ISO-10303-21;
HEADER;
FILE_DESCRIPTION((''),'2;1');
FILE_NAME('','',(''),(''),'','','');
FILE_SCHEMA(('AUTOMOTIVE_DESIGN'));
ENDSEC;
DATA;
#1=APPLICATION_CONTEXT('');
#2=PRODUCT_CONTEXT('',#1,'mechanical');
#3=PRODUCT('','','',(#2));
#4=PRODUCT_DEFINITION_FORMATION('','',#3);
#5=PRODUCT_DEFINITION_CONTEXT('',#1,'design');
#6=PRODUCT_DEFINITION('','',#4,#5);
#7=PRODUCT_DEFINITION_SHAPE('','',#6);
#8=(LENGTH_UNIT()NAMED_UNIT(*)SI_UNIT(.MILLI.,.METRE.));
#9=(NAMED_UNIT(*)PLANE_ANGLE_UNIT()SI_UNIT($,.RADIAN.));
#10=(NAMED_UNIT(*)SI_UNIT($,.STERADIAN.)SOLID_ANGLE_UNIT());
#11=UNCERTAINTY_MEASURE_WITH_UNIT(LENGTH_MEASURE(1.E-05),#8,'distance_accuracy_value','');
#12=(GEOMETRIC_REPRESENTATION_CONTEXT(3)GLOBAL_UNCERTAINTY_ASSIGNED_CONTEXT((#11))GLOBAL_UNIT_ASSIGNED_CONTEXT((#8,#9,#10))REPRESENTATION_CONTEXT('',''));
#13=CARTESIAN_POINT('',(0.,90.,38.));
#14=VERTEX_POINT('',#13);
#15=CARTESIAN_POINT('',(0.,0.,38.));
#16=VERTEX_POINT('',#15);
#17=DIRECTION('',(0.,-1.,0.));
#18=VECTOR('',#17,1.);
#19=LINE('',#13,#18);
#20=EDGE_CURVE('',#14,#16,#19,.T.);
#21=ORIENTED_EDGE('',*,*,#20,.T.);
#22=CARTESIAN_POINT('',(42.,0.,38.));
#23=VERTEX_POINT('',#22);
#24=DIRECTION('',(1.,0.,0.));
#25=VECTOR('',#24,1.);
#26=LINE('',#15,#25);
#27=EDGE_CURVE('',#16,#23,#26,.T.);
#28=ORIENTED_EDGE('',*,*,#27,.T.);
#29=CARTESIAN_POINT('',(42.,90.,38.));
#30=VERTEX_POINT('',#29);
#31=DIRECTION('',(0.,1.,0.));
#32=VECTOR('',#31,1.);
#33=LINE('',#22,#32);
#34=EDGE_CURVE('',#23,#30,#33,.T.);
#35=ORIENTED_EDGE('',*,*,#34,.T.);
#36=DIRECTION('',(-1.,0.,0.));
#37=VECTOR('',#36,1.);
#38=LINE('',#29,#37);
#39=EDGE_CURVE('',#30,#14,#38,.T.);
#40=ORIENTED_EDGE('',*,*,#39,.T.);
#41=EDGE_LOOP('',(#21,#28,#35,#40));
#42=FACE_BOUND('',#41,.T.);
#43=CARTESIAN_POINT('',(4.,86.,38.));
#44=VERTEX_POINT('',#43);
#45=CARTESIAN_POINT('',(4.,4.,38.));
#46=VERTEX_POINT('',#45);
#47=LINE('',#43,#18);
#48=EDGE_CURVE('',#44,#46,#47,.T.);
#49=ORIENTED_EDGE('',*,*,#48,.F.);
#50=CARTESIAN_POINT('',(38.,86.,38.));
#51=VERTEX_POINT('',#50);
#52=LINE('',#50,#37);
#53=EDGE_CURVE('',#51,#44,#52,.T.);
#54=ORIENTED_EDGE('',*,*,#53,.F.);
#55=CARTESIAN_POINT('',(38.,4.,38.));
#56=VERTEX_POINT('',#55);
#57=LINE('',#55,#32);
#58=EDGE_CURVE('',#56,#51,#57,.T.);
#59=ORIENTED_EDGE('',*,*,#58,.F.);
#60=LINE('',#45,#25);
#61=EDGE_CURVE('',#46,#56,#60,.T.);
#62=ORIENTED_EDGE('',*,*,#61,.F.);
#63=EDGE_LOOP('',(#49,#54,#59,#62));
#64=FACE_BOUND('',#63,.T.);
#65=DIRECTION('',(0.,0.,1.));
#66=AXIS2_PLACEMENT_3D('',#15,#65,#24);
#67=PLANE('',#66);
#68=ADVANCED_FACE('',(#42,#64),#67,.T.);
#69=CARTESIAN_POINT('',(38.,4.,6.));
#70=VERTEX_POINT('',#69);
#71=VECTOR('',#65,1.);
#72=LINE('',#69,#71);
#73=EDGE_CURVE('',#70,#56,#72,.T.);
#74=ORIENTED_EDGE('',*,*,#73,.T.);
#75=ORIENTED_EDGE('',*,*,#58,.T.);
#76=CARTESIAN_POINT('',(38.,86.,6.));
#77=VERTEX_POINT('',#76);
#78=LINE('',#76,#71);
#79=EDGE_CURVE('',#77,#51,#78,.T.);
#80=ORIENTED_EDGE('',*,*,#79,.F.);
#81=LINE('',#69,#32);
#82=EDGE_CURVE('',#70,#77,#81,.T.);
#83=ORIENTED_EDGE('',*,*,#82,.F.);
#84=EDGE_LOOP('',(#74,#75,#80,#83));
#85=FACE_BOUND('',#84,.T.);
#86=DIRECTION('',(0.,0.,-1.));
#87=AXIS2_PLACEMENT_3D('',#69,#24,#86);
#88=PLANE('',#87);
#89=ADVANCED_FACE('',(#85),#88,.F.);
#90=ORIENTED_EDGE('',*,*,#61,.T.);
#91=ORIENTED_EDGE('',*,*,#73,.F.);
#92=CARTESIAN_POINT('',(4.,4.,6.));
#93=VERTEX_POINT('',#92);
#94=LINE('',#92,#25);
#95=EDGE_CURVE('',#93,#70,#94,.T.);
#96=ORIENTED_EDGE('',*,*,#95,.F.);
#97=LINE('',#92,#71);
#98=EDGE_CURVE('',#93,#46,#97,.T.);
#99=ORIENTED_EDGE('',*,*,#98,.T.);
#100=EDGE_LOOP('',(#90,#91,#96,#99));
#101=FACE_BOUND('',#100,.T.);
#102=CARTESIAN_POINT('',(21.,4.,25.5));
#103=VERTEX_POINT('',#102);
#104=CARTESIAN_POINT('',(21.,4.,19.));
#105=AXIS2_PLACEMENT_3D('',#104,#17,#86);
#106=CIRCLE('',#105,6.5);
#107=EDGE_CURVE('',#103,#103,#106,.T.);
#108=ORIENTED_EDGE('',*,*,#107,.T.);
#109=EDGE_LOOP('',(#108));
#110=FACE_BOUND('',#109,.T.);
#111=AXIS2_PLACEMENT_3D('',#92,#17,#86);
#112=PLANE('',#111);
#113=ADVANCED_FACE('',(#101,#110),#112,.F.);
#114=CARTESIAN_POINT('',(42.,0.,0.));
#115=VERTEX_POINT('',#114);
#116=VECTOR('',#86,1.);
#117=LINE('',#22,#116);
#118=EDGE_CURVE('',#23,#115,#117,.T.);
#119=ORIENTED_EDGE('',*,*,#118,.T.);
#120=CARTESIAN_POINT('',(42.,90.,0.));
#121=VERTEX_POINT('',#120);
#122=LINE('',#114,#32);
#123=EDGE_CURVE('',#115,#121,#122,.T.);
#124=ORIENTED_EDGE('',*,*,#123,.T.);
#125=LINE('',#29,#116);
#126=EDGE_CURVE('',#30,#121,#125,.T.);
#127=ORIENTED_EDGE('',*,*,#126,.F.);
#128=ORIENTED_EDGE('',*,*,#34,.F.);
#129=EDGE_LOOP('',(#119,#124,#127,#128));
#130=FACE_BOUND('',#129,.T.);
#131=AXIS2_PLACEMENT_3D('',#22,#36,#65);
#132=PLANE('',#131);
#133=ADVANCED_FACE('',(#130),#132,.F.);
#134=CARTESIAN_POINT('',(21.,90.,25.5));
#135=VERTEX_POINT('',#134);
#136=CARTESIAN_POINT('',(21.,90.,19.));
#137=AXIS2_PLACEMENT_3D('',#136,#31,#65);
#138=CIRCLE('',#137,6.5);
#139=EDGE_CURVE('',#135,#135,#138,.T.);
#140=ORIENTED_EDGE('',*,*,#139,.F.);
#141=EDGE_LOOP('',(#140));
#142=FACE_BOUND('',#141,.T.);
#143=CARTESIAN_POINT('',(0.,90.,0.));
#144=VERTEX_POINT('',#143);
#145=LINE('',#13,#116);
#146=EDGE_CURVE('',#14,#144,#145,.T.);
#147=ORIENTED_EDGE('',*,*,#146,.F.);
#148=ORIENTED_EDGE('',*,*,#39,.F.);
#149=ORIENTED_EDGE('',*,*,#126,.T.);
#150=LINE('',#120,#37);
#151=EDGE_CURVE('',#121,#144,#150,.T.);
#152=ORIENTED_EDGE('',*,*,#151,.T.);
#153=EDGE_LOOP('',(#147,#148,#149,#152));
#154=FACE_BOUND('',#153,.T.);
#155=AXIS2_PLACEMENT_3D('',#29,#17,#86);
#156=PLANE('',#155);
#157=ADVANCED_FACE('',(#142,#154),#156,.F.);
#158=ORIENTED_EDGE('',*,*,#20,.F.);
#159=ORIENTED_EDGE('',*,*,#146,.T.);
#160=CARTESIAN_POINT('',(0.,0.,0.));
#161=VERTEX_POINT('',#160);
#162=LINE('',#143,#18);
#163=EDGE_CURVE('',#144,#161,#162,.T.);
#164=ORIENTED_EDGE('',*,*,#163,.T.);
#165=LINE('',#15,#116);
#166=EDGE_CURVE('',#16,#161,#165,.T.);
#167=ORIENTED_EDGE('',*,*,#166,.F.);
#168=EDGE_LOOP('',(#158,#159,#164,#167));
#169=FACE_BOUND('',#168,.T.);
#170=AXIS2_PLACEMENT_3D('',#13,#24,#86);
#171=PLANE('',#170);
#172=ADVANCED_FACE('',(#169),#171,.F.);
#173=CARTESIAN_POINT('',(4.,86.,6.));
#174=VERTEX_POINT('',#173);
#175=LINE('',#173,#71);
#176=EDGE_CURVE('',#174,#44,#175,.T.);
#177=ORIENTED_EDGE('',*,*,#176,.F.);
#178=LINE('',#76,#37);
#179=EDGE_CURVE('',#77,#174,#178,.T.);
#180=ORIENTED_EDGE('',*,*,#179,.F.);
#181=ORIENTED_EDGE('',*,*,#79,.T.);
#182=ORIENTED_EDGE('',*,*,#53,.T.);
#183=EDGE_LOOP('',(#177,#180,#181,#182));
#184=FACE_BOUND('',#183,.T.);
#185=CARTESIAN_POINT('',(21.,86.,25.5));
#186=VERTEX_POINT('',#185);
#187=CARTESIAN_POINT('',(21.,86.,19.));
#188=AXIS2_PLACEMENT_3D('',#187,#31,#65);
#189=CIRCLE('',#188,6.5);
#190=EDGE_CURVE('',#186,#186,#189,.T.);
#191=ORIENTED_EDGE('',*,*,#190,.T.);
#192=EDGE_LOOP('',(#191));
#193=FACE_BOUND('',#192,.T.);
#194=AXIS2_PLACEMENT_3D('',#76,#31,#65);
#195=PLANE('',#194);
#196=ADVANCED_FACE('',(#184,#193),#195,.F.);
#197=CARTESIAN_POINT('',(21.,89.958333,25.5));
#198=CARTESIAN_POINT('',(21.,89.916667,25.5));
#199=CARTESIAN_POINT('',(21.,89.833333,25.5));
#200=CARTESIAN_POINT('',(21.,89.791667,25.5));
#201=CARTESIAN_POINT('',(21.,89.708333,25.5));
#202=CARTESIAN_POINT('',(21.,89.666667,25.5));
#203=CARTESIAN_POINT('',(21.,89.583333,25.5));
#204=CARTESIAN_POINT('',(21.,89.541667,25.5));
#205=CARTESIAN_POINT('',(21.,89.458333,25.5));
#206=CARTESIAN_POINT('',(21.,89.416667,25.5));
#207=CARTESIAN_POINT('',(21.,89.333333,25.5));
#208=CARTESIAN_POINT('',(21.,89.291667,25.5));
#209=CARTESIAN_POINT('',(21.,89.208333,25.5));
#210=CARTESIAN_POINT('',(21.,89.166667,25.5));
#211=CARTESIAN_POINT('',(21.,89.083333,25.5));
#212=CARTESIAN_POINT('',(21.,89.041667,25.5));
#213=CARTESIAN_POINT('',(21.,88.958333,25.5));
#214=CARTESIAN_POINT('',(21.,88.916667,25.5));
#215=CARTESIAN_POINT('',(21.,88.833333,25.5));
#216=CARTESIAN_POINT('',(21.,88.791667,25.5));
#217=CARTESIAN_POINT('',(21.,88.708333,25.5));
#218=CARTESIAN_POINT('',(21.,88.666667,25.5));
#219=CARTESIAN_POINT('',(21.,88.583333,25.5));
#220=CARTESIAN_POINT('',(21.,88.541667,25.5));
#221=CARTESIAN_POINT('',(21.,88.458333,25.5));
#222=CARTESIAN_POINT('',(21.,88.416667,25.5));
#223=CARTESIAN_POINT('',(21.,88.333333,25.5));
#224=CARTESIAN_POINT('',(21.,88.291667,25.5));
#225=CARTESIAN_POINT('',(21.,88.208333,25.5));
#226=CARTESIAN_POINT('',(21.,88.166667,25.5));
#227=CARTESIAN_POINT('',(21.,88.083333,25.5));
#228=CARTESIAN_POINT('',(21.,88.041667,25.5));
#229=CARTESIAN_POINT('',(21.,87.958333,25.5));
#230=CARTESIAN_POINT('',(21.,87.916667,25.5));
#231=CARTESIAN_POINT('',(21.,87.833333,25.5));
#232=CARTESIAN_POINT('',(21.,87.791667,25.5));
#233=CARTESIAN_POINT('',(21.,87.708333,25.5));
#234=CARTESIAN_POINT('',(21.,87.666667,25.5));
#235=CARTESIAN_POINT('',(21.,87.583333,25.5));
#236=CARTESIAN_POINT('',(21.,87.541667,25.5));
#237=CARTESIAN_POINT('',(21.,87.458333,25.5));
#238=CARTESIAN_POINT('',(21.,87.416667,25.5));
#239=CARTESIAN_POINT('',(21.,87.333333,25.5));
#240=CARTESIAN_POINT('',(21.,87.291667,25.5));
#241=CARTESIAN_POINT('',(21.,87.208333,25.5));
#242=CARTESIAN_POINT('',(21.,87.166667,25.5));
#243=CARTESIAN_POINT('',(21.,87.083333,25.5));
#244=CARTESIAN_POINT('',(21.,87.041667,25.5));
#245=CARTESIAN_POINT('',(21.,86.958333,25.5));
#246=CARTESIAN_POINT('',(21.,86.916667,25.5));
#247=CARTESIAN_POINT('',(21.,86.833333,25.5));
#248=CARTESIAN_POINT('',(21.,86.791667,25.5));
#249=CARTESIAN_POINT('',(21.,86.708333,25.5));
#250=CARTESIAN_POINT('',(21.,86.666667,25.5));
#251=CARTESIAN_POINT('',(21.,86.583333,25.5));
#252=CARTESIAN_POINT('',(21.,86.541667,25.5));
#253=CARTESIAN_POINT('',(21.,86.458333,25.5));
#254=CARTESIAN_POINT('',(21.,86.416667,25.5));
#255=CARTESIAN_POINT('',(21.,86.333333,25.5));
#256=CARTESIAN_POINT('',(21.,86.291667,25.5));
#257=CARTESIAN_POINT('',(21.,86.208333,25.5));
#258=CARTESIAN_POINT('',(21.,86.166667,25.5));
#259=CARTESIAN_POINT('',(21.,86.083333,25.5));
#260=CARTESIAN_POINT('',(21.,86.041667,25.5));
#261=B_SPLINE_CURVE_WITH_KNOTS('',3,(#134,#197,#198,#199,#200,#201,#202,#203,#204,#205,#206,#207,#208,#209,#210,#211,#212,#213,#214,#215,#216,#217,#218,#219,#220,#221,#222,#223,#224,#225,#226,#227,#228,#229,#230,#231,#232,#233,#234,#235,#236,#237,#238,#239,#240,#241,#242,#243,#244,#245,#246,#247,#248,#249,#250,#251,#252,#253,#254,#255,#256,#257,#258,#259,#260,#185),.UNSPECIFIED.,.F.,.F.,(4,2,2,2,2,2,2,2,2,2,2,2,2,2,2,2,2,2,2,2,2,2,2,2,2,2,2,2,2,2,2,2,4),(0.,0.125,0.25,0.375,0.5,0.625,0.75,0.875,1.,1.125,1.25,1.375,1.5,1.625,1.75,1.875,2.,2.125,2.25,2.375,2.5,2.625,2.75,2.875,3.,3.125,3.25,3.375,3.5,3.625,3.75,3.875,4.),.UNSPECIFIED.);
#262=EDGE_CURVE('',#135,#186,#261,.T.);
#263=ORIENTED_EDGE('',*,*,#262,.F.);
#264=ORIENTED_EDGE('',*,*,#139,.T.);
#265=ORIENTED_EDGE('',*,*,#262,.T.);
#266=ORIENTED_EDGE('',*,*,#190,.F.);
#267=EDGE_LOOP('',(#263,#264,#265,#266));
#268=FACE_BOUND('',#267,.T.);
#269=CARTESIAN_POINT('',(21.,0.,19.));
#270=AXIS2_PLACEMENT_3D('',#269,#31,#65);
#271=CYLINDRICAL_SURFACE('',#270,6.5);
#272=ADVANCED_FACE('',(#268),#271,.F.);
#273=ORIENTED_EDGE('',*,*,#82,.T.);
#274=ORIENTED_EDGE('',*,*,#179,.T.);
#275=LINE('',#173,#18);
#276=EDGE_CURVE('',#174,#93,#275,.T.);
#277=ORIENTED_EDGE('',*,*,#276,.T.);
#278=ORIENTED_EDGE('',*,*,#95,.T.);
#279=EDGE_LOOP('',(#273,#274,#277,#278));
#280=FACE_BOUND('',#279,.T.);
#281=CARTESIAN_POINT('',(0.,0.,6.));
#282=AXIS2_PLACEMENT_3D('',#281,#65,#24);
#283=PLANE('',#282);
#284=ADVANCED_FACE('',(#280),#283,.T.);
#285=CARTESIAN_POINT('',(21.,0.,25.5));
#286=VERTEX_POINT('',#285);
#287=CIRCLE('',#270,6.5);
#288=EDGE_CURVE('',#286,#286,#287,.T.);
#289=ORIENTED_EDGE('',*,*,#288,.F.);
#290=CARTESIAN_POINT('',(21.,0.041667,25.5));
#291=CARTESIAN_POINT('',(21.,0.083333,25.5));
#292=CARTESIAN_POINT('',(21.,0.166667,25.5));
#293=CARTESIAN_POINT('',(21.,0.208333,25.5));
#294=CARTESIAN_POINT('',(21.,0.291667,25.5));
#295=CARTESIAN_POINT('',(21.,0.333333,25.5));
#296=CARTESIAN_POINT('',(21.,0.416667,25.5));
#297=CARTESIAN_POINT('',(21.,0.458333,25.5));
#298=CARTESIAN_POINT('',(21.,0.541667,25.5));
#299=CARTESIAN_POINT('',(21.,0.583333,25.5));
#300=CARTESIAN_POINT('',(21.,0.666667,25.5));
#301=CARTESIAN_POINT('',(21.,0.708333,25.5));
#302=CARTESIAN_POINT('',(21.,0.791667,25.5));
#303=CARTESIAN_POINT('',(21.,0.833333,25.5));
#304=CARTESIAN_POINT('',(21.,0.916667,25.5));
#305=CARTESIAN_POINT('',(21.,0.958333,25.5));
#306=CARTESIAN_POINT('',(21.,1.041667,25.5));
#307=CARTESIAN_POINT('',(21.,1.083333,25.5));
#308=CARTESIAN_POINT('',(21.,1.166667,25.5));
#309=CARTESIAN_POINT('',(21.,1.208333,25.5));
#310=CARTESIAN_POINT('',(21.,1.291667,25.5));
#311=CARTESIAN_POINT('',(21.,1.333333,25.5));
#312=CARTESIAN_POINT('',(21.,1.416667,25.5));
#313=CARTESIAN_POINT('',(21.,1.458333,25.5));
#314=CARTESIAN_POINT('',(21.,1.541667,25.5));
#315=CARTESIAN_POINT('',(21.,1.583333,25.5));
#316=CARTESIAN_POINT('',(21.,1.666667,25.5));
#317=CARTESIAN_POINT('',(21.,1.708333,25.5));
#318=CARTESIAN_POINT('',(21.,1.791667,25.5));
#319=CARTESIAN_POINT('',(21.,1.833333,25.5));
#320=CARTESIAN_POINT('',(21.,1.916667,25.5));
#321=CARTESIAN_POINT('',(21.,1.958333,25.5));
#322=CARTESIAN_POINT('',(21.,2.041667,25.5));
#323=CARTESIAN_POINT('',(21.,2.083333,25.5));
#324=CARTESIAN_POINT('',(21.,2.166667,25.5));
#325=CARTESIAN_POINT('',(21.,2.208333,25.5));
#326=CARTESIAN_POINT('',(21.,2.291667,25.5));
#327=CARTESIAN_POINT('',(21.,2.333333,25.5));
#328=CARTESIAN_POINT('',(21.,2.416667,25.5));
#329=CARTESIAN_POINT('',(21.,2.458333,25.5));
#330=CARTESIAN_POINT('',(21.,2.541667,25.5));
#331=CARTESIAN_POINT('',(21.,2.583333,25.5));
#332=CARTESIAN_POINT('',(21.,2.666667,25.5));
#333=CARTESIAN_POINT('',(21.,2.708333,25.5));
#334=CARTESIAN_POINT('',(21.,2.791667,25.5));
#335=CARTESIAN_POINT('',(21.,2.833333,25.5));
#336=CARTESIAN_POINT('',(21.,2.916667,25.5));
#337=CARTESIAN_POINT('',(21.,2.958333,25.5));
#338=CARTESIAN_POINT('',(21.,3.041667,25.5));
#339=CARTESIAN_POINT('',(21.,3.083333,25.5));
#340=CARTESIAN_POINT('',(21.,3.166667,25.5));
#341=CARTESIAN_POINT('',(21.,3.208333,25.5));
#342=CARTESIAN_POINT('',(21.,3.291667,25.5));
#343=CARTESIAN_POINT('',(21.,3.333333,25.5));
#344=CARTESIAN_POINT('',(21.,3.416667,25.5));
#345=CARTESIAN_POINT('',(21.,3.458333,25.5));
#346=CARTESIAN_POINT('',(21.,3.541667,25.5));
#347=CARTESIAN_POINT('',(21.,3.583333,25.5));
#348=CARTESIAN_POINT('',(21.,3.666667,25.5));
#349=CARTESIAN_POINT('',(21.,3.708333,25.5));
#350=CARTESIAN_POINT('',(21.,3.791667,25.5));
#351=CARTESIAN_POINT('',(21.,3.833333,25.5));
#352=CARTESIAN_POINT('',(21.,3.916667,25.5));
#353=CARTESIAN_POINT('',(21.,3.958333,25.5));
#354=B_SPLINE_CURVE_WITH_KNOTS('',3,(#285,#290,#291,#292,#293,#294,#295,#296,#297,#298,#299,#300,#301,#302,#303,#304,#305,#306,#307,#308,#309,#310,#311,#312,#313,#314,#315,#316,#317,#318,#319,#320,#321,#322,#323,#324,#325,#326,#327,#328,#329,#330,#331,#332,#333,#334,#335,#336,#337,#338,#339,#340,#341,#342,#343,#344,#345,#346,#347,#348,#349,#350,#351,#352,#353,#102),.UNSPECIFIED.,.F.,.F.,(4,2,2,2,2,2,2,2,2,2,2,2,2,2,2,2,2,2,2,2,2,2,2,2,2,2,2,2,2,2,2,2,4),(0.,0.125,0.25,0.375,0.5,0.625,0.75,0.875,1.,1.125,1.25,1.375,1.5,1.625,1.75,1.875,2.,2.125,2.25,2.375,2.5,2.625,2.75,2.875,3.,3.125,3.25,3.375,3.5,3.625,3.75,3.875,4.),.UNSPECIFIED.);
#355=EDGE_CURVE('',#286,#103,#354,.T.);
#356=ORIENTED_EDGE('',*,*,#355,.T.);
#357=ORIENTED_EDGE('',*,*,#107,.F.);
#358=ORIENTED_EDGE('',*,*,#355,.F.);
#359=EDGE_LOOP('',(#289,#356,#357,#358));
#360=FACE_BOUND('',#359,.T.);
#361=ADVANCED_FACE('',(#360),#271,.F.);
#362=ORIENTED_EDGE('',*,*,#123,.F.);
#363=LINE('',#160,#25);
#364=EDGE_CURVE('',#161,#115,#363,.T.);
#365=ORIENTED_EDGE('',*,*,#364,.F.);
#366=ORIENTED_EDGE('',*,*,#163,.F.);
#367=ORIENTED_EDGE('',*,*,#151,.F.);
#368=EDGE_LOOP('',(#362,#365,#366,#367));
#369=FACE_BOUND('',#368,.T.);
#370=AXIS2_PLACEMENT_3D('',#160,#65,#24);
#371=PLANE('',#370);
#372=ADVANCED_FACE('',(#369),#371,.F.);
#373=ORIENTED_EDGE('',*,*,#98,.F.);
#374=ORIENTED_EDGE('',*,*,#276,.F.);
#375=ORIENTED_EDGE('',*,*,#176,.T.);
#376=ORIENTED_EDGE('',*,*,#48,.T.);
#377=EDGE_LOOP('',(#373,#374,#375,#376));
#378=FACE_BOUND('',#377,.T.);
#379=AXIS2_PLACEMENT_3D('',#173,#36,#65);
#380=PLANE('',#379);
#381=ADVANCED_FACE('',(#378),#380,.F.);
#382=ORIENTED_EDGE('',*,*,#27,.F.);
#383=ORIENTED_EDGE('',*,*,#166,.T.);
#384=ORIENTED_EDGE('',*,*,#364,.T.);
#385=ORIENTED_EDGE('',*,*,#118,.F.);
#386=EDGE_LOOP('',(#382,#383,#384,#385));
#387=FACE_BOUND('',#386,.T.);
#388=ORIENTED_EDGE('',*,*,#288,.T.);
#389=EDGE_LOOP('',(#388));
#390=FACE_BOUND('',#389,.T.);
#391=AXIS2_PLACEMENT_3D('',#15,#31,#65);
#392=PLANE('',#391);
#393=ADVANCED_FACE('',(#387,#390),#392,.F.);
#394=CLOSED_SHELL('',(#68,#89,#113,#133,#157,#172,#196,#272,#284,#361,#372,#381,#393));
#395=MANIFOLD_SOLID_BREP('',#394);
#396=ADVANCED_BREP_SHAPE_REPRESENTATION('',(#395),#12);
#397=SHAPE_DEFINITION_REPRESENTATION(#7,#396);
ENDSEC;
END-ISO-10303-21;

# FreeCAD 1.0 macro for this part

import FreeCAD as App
import Part
import Sketcher
Q = App.Units.Quantity

doc = App.newDocument("Part")
body = doc.addObject("PartDesign::Body", "Body")

sketch1 = doc.addObject("Sketcher::SketchObject", "Sketch")
body.addObject(sketch1)
sketch1.AttachmentSupport = (doc.XY_Plane, [""])
sketch1.MapMode = "FlatFace"
sketch1.addGeometry([
    Part.LineSegment(App.Vector(0, 90, 0), App.Vector(0, 0, 0)),
    Part.LineSegment(App.Vector(0, 0, 0), App.Vector(42, 0, 0)),
    Part.LineSegment(App.Vector(42, 0, 0), App.Vector(42, 90, 0)),
    Part.LineSegment(App.Vector(42, 90, 0), App.Vector(0, 90, 0)),
], False)
sketch1.addConstraint([
    Sketcher.Constraint("Coincident", 0, 2, 1, 1),
    Sketcher.Constraint("Coincident", 1, 2, 2, 1),
    Sketcher.Constraint("Coincident", 2, 2, 3, 1),
    Sketcher.Constraint("Coincident", 3, 2, 0, 1),
    Sketcher.Constraint("Vertical", 0),
    Sketcher.Constraint("Horizontal", 1),
    Sketcher.Constraint("Vertical", 2),
    Sketcher.Constraint("Horizontal", 3),
    Sketcher.Constraint("Coincident", 0, 2, -1, 1),
    Sketcher.Constraint("DistanceX", 1, 1, 1, 2, Q("42 mm")),
    Sketcher.Constraint("DistanceY", 0, 2, 0, 1, Q("90 mm")),
])
pad1 = doc.addObject("PartDesign::Pad", "Pad")
body.addObject(pad1)
pad1.Profile = sketch1
pad1.Length = 38

sketch2 = doc.addObject("Sketcher::SketchObject", "Sketch001")
body.addObject(sketch2)
sketch2.AttachmentSupport = (doc.XY_Plane, [""])
sketch2.MapMode = "FlatFace"
sketch2.AttachmentOffset = App.Placement(App.Vector(0, 0, 38), App.Rotation())
sketch2.addGeometry([
    Part.LineSegment(App.Vector(4, 86, 0), App.Vector(4, 4, 0)),
    Part.LineSegment(App.Vector(4, 4, 0), App.Vector(38, 4, 0)),
    Part.LineSegment(App.Vector(38, 4, 0), App.Vector(38, 86, 0)),
    Part.LineSegment(App.Vector(38, 86, 0), App.Vector(4, 86, 0)),
], False)
sketch2.addConstraint([
    Sketcher.Constraint("Coincident", 0, 2, 1, 1),
    Sketcher.Constraint("Coincident", 1, 2, 2, 1),
    Sketcher.Constraint("Coincident", 2, 2, 3, 1),
    Sketcher.Constraint("Coincident", 3, 2, 0, 1),
    Sketcher.Constraint("Vertical", 0),
    Sketcher.Constraint("Horizontal", 1),
    Sketcher.Constraint("Vertical", 2),
    Sketcher.Constraint("Horizontal", 3),
    Sketcher.Constraint("DistanceX", 1, 1, 1, 2, Q("34 mm")),
    Sketcher.Constraint("DistanceY", 0, 2, 0, 1, Q("82 mm")),
    Sketcher.Constraint("DistanceX", -1, 1, 0, 2, Q("4 mm")),
    Sketcher.Constraint("DistanceY", -1, 1, 0, 2, Q("4 mm")),
])
pocket1 = doc.addObject("PartDesign::Pocket", "Pocket")
body.addObject(pocket1)
pocket1.Profile = sketch2
pocket1.Length = 32

sketch3 = doc.addObject("Sketcher::SketchObject", "Sketch002")
body.addObject(sketch3)
sketch3.AttachmentSupport = (doc.XZ_Plane, [""])
sketch3.MapMode = "FlatFace"
sketch3.AttachmentOffset = App.Placement(App.Vector(0, 0, -90), App.Rotation())
sketch3.addGeometry(Part.Circle(App.Vector(21, 19, 0), App.Vector(0, 0, 1), 6), False)
sketch3.addConstraint([
    Sketcher.Constraint("Diameter", 0, Q("13 mm")),
    Sketcher.Constraint("DistanceX", -1, 1, 0, 3, Q("21 mm")),
    Sketcher.Constraint("DistanceY", -1, 1, 0, 3, Q("19 mm")),
])
pocket2 = doc.addObject("PartDesign::Pocket", "Pocket001")
body.addObject(pocket2)
pocket2.Profile = sketch3
pocket2.Type = "ThroughAll"
pocket2.Reversed = True

doc.recompute()
